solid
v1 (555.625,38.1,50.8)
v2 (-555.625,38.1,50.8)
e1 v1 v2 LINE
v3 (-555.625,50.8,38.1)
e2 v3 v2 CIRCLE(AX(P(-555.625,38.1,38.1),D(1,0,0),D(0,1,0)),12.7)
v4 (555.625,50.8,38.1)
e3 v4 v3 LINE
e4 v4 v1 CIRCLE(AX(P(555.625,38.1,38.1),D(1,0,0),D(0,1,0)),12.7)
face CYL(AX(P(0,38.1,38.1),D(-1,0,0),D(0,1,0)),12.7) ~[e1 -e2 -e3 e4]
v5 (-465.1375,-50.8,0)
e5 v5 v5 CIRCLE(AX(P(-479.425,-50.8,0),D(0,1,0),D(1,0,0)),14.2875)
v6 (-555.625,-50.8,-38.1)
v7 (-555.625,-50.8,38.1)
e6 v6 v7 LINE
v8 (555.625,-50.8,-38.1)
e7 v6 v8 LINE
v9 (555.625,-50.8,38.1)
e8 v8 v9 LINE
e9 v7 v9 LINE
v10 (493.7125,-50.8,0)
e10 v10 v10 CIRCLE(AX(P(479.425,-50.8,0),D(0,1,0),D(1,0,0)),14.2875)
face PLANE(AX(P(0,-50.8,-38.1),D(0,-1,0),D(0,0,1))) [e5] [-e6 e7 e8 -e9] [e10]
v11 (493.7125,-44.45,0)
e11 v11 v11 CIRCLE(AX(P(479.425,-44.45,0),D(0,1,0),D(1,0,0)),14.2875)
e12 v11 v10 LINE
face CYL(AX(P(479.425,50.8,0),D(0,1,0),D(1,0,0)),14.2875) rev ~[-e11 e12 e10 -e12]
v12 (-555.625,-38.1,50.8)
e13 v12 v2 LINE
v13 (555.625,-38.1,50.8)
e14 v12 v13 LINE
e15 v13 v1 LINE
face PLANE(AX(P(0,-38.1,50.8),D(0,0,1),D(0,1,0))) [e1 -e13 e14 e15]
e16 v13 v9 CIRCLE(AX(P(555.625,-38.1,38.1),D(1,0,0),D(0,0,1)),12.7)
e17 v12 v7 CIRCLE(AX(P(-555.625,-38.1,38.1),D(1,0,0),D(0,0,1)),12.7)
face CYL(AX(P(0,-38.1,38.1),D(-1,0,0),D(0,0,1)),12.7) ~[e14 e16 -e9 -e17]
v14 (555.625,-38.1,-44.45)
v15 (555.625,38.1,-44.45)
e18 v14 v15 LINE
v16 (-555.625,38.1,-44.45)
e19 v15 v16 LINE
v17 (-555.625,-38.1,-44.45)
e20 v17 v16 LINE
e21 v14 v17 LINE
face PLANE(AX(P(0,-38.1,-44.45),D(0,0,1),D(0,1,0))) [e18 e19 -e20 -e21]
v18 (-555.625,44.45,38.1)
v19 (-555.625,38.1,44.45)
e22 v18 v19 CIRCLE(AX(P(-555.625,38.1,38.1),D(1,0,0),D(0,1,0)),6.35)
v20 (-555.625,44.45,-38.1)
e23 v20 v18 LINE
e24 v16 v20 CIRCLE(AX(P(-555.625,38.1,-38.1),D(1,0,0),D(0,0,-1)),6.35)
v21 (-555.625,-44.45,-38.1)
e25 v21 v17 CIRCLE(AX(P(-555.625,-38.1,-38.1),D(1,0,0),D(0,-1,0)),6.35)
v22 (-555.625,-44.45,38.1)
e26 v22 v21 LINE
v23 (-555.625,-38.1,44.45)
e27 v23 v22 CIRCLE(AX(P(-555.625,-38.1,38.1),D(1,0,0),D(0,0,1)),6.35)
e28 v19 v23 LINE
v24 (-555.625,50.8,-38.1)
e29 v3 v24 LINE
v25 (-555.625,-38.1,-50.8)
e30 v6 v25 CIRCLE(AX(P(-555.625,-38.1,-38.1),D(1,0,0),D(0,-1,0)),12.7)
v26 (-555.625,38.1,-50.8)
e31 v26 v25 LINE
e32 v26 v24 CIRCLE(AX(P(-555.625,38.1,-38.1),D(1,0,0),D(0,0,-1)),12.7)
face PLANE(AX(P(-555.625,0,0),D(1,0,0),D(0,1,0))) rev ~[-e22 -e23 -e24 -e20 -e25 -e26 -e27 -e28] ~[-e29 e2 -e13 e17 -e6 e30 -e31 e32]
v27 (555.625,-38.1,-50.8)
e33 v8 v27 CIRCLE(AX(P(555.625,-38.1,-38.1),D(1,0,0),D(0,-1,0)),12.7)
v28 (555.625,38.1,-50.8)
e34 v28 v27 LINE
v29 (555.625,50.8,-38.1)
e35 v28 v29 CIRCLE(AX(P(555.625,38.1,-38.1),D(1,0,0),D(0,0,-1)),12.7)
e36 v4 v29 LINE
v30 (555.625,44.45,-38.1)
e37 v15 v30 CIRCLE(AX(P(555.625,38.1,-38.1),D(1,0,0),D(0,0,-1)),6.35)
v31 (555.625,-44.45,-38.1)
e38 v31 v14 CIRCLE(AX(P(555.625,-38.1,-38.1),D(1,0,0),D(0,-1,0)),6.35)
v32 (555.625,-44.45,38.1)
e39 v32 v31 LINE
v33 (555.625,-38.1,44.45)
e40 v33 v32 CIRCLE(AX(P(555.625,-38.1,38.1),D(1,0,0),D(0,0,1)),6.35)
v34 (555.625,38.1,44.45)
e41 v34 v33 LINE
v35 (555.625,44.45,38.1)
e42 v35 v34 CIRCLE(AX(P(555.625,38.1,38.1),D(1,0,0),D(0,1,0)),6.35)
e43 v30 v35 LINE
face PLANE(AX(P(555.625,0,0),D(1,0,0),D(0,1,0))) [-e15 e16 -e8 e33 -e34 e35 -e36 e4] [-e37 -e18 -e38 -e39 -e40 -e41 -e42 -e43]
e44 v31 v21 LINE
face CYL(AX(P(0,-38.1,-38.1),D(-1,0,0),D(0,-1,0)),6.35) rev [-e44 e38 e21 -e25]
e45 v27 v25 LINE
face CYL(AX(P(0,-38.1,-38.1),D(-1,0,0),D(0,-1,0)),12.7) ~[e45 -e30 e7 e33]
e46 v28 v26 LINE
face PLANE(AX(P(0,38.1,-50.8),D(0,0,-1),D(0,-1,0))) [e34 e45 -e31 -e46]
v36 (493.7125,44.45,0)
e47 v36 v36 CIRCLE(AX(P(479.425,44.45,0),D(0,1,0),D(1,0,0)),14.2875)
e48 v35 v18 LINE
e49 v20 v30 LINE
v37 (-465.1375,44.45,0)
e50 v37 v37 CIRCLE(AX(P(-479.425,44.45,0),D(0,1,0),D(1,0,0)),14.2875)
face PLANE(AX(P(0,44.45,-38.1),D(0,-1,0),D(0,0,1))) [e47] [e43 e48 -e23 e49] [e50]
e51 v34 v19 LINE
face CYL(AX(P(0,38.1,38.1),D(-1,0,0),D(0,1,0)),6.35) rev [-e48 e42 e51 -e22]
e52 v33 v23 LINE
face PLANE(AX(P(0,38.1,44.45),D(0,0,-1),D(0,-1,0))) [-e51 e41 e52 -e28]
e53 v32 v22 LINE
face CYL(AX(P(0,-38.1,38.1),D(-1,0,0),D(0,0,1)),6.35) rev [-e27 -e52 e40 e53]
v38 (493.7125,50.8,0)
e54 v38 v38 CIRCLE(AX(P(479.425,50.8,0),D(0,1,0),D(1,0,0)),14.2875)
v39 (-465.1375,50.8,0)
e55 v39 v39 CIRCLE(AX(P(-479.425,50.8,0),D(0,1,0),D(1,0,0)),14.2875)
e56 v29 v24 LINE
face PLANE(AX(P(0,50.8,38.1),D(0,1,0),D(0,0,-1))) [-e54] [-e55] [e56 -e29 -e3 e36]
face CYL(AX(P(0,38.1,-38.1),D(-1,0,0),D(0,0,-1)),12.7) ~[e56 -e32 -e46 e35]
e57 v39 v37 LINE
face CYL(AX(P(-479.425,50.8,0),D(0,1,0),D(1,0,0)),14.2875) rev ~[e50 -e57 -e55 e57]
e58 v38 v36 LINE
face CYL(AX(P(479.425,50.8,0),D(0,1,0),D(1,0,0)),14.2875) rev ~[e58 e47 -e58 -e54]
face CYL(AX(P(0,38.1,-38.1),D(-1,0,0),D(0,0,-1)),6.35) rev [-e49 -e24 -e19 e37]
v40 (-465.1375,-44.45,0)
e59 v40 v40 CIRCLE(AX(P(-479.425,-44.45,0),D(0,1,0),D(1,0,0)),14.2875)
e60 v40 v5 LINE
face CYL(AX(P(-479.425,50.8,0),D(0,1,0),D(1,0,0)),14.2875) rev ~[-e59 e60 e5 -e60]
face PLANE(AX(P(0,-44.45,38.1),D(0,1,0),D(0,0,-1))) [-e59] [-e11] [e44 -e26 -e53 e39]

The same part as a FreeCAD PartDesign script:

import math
import FreeCAD as App
import Part
import Sketcher

V = App.Vector
Q = App.Units.Quantity

doc = App.newDocument("Part")
body = doc.addObject("PartDesign::Body", "Body")

sketch1 = body.newObject("Sketcher::SketchObject", "Sketch")
sketch1.AttachmentSupport = (doc.getObject("YZ_Plane"), [""])
sketch1.MapMode = "FlatFace"
sketch1.addGeometry([
    Part.LineSegment(V(38, 51, 0), V(-38, 51, 0)),
    Part.ArcOfCircle(Part.Circle(V(-38, 38, 0), V(0, 0, 1), 13), math.radians(90), math.radians(180)),
    Part.LineSegment(V(-51, 38, 0), V(-51, -38, 0)),
    Part.ArcOfCircle(Part.Circle(V(-38, -38, 0), V(0, 0, 1), 13), math.radians(180), math.radians(270)),
    Part.LineSegment(V(-38, -51, 0), V(38, -51, 0)),
    Part.ArcOfCircle(Part.Circle(V(38, -38, 0), V(0, 0, 1), 13), math.radians(-90), math.radians(0)),
    Part.LineSegment(V(51, -38, 0), V(51, 38, 0)),
    Part.ArcOfCircle(Part.Circle(V(38, 38, 0), V(0, 0, 1), 13), math.radians(0), math.radians(90)),
    Part.LineSegment(V(44, 38, 0), V(44, -38, 0)),
    Part.ArcOfCircle(Part.Circle(V(38, -38, 0), V(0, 0, 1), 6), math.radians(-90), math.radians(0)),
    Part.LineSegment(V(38, -44, 0), V(-38, -44, 0)),
    Part.ArcOfCircle(Part.Circle(V(-38, -38, 0), V(0, 0, 1), 6), math.radians(180), math.radians(270)),
    Part.LineSegment(V(-44, -38, 0), V(-44, 38, 0)),
    Part.ArcOfCircle(Part.Circle(V(-38, 38, 0), V(0, 0, 1), 6), math.radians(90), math.radians(180)),
    Part.LineSegment(V(-38, 44, 0), V(38, 44, 0)),
    Part.ArcOfCircle(Part.Circle(V(38, 38, 0), V(0, 0, 1), 6), math.radians(0), math.radians(90)),
], False)
sketch1.addConstraint([
    Sketcher.Constraint("Tangent", 0, 2, 1, 1),
    Sketcher.Constraint("Tangent", 1, 2, 2, 1),
    Sketcher.Constraint("Tangent", 2, 2, 3, 1),
    Sketcher.Constraint("Tangent", 3, 2, 4, 1),
    Sketcher.Constraint("Tangent", 4, 2, 5, 1),
    Sketcher.Constraint("Tangent", 5, 2, 6, 1),
    Sketcher.Constraint("Tangent", 6, 2, 7, 1),
    Sketcher.Constraint("Tangent", 7, 2, 0, 1),
    Sketcher.Constraint("Tangent", 8, 2, 9, 2),
    Sketcher.Constraint("Tangent", 9, 1, 10, 1),
    Sketcher.Constraint("Tangent", 10, 2, 11, 2),
    Sketcher.Constraint("Tangent", 11, 1, 12, 1),
    Sketcher.Constraint("Tangent", 12, 2, 13, 2),
    Sketcher.Constraint("Tangent", 13, 1, 14, 1),
    Sketcher.Constraint("Tangent", 14, 2, 15, 2),
    Sketcher.Constraint("Tangent", 15, 1, 8, 1),
    Sketcher.Constraint("Horizontal", 0),
    Sketcher.Constraint("Vertical", 2),
    Sketcher.Constraint("Horizontal", 4),
    Sketcher.Constraint("Vertical", 6),
    Sketcher.Constraint("Vertical", 8),
    Sketcher.Constraint("Horizontal", 10),
    Sketcher.Constraint("Vertical", 12),
    Sketcher.Constraint("Horizontal", 14),
    Sketcher.Constraint("Coincident", 9, 3, 5, 3),
    Sketcher.Constraint("Coincident", 11, 3, 3, 3),
    Sketcher.Constraint("Coincident", 13, 3, 1, 3),
    Sketcher.Constraint("Equal", 1, 3),
    Sketcher.Constraint("Equal", 3, 5),
    Sketcher.Constraint("Equal", 5, 7),
    Sketcher.Constraint("Equal", 13, 15),
    Sketcher.Constraint("Symmetric", 1, 3, 5, 3, -1, 1),
    Sketcher.Constraint("Equal", 14, 2),
    Sketcher.Constraint("Radius", 1, Q("0.5 in")),
    Sketcher.Constraint("Radius", 9, Q("0.25 in")),
    Sketcher.Constraint("DistanceX", 0, 2, 0, 1, Q("3 in")),
])
pad1 = body.newObject("PartDesign::Pad", "Pad")
pad1.Profile = sketch1
pad1.Length = Q("43.75 in")
pad1.Midplane = True

sketch2 = body.newObject("Sketcher::SketchObject", "Sketch001")
sketch2.AttachmentSupport = (doc.getObject("XZ_Plane"), [""])
sketch2.MapMode = "FlatFace"
sketch2.AttachmentOffset = App.Placement(V(0, 0, -2 * 25.4), App.Rotation())
sketch2.addGeometry([
    Part.Circle(V(-479, 0, 0), V(0, 0, 1), 14),
    Part.Circle(V(479, 0, 0), V(0, 0, 1), 14),
], False)
sketch2.addConstraint([
    Sketcher.Constraint("Equal", 0, 1),
    Sketcher.Constraint("Symmetric", 0, 3, 1, 3, -1, 1),
    Sketcher.Constraint("PointOnObject", 0, 3, -1),
    Sketcher.Constraint("Diameter", 0, Q("1.125 in")),
    Sketcher.Constraint("DistanceX", 0, 3, 1, 3, Q("37.75 in")),
])
pocket1 = body.newObject("PartDesign::Pocket", "Pocket")
pocket1.Profile = sketch2
pocket1.Length = Q("15.0625 in")
pocket1.Reversed = True

doc.recompute()
